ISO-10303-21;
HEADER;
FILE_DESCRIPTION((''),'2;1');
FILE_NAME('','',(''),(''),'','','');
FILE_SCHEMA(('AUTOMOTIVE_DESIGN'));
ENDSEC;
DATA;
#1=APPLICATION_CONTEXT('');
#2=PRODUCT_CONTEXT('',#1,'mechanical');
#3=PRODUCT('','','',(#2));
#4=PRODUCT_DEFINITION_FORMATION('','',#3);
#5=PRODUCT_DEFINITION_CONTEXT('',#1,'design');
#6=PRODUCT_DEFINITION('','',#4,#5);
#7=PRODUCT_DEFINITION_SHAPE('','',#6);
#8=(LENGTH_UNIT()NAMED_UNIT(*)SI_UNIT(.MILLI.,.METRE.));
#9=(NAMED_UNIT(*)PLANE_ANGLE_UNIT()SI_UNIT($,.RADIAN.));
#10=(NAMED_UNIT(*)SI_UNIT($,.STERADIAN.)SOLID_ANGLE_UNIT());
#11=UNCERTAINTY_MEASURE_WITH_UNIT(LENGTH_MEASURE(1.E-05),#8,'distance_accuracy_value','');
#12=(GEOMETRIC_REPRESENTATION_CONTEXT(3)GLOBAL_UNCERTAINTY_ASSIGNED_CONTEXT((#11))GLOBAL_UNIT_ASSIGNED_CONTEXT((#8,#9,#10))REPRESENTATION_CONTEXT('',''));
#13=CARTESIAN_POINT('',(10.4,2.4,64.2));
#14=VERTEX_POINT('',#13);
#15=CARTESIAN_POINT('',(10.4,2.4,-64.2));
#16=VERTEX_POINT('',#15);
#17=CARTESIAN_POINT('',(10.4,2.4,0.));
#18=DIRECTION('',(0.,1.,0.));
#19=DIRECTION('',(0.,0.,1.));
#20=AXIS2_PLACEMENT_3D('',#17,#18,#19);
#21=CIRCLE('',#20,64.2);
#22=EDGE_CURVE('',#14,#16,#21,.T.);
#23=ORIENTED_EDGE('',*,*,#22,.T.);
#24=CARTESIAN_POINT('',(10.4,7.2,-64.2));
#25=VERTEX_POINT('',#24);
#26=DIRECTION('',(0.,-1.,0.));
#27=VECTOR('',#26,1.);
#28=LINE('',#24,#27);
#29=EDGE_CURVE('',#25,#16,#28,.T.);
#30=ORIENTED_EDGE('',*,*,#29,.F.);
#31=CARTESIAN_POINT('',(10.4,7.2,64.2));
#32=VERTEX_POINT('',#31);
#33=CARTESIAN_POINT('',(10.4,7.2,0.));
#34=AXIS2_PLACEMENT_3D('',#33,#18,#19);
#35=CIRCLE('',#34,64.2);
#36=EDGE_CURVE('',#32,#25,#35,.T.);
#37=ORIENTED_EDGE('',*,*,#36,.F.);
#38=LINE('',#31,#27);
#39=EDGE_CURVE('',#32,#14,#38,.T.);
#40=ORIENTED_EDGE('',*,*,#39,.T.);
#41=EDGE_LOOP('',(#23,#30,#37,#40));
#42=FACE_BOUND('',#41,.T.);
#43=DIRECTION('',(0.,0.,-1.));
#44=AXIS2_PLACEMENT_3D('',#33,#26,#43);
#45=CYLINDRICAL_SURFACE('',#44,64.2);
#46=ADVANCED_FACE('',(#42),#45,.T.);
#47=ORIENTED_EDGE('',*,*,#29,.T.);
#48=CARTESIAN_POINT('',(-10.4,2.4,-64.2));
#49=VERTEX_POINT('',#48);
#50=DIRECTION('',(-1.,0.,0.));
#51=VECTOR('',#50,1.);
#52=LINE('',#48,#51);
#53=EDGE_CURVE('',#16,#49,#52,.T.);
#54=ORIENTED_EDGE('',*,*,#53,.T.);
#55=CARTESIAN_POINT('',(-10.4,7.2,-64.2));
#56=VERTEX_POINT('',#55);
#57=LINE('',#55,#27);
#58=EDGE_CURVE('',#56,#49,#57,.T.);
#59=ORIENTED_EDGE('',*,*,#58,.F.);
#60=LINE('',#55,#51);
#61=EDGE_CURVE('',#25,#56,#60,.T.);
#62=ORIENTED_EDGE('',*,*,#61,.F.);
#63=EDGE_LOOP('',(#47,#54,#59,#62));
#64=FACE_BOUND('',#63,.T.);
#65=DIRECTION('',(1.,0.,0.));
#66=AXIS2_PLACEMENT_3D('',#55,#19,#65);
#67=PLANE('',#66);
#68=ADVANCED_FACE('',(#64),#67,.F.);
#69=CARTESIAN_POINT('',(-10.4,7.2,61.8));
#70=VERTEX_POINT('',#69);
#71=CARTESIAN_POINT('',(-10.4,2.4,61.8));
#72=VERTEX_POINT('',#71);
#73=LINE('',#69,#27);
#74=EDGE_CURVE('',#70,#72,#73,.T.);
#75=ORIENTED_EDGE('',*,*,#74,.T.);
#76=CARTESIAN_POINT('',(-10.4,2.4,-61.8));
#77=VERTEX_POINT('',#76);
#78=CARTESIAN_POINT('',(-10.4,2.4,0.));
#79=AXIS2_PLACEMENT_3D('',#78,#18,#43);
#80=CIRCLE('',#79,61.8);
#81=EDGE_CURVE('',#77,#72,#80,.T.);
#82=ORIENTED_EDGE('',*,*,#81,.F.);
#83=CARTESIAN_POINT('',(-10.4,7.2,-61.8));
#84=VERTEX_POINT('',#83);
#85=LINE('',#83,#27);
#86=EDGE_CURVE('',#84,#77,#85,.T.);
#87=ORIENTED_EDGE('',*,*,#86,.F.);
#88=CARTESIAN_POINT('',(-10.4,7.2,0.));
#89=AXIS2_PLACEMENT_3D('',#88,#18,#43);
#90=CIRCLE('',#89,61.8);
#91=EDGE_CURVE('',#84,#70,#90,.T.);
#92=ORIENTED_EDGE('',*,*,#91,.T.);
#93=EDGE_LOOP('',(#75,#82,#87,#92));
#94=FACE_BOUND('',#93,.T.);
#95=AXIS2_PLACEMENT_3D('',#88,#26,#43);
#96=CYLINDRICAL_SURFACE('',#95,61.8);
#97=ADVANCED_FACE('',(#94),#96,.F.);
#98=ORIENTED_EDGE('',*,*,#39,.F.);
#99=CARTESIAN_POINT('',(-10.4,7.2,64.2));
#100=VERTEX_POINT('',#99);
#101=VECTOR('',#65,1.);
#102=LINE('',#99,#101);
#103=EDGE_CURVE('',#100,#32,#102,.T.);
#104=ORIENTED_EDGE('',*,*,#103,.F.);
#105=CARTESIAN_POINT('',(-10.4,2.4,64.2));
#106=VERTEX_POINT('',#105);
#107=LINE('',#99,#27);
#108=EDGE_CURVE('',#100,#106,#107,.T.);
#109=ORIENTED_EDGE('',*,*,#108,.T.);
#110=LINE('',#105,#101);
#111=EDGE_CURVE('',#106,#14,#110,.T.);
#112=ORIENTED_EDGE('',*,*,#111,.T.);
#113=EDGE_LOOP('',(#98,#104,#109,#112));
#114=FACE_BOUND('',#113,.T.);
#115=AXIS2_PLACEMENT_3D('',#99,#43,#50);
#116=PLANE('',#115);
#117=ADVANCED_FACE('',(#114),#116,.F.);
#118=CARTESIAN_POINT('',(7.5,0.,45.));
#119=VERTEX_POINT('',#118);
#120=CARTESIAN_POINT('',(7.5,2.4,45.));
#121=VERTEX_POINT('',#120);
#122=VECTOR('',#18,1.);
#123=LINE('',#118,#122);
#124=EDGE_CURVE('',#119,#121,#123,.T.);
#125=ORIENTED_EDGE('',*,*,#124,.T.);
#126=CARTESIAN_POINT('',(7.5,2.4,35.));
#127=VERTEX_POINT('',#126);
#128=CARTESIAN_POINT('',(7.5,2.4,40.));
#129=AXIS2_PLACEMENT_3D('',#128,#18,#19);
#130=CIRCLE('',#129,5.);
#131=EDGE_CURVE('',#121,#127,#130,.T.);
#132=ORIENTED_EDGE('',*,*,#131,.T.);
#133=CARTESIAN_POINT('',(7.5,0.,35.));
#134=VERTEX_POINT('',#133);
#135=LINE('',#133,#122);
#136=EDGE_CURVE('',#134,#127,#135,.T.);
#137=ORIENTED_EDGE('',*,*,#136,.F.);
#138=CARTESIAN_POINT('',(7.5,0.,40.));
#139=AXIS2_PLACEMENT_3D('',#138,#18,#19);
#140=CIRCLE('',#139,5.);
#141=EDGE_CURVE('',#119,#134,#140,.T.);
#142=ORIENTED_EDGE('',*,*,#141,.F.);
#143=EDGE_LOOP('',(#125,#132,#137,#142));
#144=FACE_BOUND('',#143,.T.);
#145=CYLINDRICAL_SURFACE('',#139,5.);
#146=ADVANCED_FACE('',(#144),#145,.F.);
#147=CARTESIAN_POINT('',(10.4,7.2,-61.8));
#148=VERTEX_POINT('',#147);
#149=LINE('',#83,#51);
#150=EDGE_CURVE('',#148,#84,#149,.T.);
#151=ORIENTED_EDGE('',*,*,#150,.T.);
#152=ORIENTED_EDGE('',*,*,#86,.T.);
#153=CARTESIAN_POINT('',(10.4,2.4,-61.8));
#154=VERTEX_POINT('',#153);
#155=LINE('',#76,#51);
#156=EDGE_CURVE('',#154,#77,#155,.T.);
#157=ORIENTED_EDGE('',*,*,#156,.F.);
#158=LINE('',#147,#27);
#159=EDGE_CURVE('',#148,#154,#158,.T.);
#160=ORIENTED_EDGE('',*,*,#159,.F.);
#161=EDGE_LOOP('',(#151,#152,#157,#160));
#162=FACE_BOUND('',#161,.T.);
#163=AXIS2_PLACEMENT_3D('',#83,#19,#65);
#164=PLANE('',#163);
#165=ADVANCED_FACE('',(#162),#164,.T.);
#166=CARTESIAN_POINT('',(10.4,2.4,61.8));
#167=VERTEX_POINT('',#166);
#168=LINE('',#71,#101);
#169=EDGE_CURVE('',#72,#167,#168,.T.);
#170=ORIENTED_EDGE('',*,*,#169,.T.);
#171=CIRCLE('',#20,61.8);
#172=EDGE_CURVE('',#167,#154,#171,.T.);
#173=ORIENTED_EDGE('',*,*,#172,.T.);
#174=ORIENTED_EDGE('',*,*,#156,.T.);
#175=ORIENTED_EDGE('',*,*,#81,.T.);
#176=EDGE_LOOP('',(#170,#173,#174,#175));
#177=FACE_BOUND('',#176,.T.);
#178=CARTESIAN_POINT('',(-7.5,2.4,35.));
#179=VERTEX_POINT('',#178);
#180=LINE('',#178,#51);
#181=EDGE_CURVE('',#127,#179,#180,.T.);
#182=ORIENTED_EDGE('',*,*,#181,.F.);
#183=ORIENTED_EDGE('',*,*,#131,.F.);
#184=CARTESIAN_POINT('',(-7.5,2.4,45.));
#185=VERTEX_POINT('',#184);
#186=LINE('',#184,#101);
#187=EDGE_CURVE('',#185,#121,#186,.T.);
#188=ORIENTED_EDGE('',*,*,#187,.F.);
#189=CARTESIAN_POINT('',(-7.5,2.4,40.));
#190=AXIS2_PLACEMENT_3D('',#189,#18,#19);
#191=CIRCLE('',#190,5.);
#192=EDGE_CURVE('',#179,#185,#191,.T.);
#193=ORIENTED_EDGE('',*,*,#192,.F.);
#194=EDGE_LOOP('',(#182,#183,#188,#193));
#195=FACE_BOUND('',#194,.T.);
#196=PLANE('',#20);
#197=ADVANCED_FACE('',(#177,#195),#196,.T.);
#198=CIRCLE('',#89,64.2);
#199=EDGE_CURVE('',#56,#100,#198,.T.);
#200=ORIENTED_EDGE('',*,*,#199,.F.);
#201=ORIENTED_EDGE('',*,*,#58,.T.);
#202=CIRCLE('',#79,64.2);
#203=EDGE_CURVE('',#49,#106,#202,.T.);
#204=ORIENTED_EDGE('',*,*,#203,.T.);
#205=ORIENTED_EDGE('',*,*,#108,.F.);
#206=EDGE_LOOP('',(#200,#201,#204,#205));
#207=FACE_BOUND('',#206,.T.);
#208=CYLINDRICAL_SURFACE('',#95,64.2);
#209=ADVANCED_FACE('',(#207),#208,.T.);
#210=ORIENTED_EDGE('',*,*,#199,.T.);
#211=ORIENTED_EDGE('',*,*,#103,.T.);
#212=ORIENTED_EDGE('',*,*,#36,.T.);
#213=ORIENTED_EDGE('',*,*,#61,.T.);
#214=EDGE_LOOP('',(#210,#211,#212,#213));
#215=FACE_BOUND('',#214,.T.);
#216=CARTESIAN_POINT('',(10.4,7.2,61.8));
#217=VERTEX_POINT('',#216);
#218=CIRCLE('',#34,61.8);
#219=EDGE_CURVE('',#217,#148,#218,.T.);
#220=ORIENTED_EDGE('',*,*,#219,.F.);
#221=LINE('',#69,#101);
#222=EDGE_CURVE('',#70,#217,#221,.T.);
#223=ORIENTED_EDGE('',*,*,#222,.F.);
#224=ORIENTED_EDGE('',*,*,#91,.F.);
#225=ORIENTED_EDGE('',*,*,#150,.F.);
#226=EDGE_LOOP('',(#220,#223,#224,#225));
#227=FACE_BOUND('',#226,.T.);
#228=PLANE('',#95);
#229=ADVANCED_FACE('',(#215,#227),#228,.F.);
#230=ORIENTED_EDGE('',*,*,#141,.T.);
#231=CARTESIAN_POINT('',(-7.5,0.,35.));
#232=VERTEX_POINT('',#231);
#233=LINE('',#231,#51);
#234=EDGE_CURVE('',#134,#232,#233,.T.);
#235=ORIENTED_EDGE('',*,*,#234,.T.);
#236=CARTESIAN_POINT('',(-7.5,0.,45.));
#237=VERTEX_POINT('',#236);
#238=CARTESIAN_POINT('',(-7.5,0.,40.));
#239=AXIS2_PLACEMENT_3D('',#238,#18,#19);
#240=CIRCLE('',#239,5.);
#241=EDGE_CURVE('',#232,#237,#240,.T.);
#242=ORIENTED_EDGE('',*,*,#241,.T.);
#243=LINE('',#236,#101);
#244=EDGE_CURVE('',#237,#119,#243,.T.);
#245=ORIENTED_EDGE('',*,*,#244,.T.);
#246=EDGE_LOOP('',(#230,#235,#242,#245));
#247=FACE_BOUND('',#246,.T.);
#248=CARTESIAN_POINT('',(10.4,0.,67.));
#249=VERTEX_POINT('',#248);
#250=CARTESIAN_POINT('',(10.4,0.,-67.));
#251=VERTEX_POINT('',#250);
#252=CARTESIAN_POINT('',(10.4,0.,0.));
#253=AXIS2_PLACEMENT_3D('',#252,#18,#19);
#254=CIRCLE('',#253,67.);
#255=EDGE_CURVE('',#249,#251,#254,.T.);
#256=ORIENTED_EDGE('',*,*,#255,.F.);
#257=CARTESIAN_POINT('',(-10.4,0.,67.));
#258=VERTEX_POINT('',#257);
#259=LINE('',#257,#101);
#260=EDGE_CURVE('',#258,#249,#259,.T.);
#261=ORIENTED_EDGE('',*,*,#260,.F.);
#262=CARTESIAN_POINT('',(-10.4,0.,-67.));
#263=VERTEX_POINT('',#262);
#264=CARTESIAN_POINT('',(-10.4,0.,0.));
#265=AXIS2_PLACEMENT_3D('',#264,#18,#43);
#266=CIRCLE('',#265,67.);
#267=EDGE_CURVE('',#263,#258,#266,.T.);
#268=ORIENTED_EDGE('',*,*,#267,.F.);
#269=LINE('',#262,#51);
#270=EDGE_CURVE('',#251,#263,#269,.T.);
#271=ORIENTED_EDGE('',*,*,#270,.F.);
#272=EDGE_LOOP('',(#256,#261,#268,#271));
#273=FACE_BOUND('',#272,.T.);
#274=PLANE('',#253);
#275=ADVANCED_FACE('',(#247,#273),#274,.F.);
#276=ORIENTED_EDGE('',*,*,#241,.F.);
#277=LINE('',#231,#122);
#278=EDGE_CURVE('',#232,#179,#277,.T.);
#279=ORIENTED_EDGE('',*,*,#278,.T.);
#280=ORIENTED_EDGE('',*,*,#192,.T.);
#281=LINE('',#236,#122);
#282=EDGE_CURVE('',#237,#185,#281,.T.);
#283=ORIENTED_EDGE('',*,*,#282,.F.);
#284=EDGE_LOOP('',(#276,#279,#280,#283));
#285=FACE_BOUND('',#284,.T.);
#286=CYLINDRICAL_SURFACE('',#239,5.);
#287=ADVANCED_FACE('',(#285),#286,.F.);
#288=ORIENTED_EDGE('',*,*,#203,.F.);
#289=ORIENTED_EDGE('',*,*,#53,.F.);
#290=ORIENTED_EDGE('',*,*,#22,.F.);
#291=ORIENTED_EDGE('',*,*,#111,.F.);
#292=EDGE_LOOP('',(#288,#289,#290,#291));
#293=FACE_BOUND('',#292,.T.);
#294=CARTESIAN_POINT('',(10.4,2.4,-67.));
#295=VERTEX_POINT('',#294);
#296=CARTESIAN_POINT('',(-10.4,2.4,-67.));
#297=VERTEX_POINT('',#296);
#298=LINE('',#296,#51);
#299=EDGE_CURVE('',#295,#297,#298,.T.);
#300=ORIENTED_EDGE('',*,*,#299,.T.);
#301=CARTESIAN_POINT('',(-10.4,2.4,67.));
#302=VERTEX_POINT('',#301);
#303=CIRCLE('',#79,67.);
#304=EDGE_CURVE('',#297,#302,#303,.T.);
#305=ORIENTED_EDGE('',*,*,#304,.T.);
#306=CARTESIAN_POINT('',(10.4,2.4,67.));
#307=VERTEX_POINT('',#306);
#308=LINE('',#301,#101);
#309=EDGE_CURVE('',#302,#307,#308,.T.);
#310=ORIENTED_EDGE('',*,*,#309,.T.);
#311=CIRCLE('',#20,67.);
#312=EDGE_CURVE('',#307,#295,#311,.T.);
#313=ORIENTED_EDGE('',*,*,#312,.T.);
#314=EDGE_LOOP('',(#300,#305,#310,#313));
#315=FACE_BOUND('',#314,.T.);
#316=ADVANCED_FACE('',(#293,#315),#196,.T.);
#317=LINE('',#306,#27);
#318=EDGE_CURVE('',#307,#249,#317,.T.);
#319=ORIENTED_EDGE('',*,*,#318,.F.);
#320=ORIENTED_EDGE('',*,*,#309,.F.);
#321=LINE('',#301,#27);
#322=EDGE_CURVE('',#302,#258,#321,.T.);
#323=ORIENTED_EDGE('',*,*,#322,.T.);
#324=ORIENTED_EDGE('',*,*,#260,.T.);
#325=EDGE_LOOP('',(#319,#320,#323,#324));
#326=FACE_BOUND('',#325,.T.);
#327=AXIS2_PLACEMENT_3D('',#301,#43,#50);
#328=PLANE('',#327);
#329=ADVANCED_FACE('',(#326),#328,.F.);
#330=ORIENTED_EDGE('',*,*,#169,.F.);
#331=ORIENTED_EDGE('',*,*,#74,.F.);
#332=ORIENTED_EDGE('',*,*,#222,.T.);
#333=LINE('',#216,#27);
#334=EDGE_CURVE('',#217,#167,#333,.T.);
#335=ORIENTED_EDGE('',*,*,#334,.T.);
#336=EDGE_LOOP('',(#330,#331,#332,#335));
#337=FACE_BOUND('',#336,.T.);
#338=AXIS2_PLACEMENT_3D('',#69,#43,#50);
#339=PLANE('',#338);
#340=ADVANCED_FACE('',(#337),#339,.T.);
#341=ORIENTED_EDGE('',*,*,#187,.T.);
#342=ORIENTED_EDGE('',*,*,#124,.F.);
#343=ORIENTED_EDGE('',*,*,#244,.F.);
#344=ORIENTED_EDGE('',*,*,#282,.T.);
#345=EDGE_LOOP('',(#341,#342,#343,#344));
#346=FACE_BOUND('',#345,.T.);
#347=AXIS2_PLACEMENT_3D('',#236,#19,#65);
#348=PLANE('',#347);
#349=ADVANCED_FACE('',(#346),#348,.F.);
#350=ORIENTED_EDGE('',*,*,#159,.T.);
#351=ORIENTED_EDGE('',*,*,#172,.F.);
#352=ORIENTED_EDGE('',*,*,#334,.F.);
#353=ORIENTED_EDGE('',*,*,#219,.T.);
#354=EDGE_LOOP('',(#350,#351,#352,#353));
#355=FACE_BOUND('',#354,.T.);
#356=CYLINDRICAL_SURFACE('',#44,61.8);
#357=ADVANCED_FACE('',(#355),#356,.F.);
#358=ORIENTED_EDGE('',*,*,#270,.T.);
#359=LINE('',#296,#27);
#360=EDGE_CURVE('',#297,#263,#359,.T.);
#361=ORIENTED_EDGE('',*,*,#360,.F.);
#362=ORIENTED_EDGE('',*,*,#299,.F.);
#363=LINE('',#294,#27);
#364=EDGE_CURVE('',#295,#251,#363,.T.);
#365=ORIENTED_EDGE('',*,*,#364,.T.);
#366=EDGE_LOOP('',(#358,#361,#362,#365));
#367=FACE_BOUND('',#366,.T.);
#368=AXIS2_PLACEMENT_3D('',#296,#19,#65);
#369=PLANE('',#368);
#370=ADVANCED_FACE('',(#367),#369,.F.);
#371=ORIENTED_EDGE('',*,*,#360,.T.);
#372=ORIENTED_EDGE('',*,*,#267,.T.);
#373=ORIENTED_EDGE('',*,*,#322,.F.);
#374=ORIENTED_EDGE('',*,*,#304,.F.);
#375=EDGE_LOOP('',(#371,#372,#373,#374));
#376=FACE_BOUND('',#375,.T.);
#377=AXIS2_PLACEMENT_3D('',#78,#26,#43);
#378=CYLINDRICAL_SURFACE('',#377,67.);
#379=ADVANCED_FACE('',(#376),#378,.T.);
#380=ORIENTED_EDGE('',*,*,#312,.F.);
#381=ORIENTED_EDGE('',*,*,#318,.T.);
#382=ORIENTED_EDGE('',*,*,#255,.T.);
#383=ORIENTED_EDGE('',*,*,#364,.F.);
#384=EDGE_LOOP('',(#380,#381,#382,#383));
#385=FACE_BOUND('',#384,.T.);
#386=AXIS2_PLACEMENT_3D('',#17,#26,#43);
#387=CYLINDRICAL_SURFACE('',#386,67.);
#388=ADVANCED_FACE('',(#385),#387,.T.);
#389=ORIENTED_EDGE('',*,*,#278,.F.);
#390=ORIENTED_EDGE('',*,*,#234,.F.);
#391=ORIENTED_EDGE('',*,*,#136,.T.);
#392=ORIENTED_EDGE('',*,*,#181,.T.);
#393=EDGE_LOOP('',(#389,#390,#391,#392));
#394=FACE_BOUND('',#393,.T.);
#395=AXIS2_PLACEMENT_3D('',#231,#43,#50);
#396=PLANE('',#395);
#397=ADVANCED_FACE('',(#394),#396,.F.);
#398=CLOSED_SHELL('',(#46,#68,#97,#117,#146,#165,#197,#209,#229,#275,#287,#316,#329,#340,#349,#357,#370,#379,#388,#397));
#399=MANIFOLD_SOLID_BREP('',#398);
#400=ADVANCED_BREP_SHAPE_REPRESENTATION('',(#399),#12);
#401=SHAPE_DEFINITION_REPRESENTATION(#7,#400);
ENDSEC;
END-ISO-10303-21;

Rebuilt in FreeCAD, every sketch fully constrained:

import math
import FreeCAD as App
import Part
import Sketcher

V = App.Vector

doc = App.newDocument("Part")
params = doc.addObject("Spreadsheet::Sheet", "Params")
for row, (alias, value) in enumerate([
    ("sketch1_radius", "67 mm"),
    ("sketch1_width", "20.8 mm"),
    ("pad1_length", "2.4 mm"),
    ("sketch2_radius", "64.2 mm"),
    ("sketch2_radius2", "61.8 mm"),
    ("sketch2_width", "20.8 mm"),
    ("pad2_length", "4.8 mm"),
    ("sketch3_radius", "5 mm"),
    ("sketch3_width", "15 mm"),
], start=1):
    params.set(f"A{row}", alias)
    params.set(f"B{row}", "=" + value)
    params.setAlias(f"B{row}", alias)

body = doc.addObject("PartDesign::Body", "Body")

sketch1 = body.newObject("Sketcher::SketchObject", "Sketch")
sketch1.AttachmentSupport = (doc.getObject("XZ_Plane"), [""])
sketch1.MapMode = "FlatFace"
sketch1.addGeometry(Part.LineSegment(V(10, -67, 0), V(-10, -67, 0)), False)
sketch1.addGeometry(Part.ArcOfCircle(Part.Circle(V(-10, 0, 0), V(0, 0, 1), 67), math.radians(90), math.radians(270)), False)
sketch1.addGeometry(Part.LineSegment(V(-10, 67, 0), V(10, 67, 0)), False)
sketch1.addGeometry(Part.ArcOfCircle(Part.Circle(V(10, 0, 0), V(0, 0, 1), 67), math.radians(-90), math.radians(90)), False)
sketch1.addConstraint(Sketcher.Constraint("Tangent", 0, 2, 1, 2))
sketch1.addConstraint(Sketcher.Constraint("Tangent", 1, 1, 2, 1))
sketch1.addConstraint(Sketcher.Constraint("Tangent", 2, 2, 3, 2))
sketch1.addConstraint(Sketcher.Constraint("Tangent", 3, 1, 0, 1))
sketch1.addConstraint(Sketcher.Constraint("Horizontal", 0))
sketch1.addConstraint(Sketcher.Constraint("Horizontal", 2))
sketch1.addConstraint(Sketcher.Constraint("Symmetric", 1, 3, 3, 3, -1, 1))
sketch1.addConstraint(Sketcher.Constraint("Radius", 1, 67.0))
sketch1.addConstraint(Sketcher.Constraint("DistanceX", 0, 2, 0, 1, 20.8))
sketch1.setExpression("Constraints[7]", "Params.sketch1_radius")
sketch1.setExpression("Constraints[8]", "Params.sketch1_width")
pad1 = body.newObject("PartDesign::Pad", "Pad")
pad1.Profile = sketch1
pad1.setExpression("Length", "Params.pad1_length")
pad1.Reversed = True

sketch2 = body.newObject("Sketcher::SketchObject", "Sketch001")
sketch2.AttachmentSupport = (doc.getObject("XZ_Plane"), [""])
sketch2.MapMode = "FlatFace"
sketch2.AttachmentOffset = App.Placement(V(0, 0, -2.4), App.Rotation())
sketch2.addGeometry(Part.LineSegment(V(10, -64, 0), V(-10, -64, 0)), False)
sketch2.addGeometry(Part.ArcOfCircle(Part.Circle(V(-10, 0, 0), V(0, 0, 1), 64), math.radians(90), math.radians(270)), False)
sketch2.addGeometry(Part.LineSegment(V(-10, 64, 0), V(10, 64, 0)), False)
sketch2.addGeometry(Part.ArcOfCircle(Part.Circle(V(10, 0, 0), V(0, 0, 1), 64), math.radians(-90), math.radians(90)), False)
sketch2.addGeometry(Part.LineSegment(V(-10, -62, 0), V(10, -62, 0)), False)
sketch2.addGeometry(Part.ArcOfCircle(Part.Circle(V(10, 0, 0), V(0, 0, 1), 62), math.radians(-90), math.radians(90)), False)
sketch2.addGeometry(Part.LineSegment(V(10, 62, 0), V(-10, 62, 0)), False)
sketch2.addGeometry(Part.ArcOfCircle(Part.Circle(V(-10, 0, 0), V(0, 0, 1), 62), math.radians(90), math.radians(270)), False)
sketch2.addConstraint(Sketcher.Constraint("Tangent", 0, 2, 1, 2))
sketch2.addConstraint(Sketcher.Constraint("Tangent", 1, 1, 2, 1))
sketch2.addConstraint(Sketcher.Constraint("Tangent", 2, 2, 3, 2))
sketch2.addConstraint(Sketcher.Constraint("Tangent", 3, 1, 0, 1))
sketch2.addConstraint(Sketcher.Constraint("Tangent", 4, 2, 5, 1))
sketch2.addConstraint(Sketcher.Constraint("Tangent", 5, 2, 6, 1))
sketch2.addConstraint(Sketcher.Constraint("Tangent", 6, 2, 7, 1))
sketch2.addConstraint(Sketcher.Constraint("Tangent", 7, 2, 4, 1))
sketch2.addConstraint(Sketcher.Constraint("Horizontal", 0))
sketch2.addConstraint(Sketcher.Constraint("Horizontal", 2))
sketch2.addConstraint(Sketcher.Constraint("Horizontal", 4))
sketch2.addConstraint(Sketcher.Constraint("Horizontal", 6))
sketch2.addConstraint(Sketcher.Constraint("Coincident", 5, 3, 3, 3))
sketch2.addConstraint(Sketcher.Constraint("Symmetric", 1, 3, 3, 3, -1, 1))
sketch2.addConstraint(Sketcher.Constraint("Vertical", 7, 3, 0, 2))
sketch2.addConstraint(Sketcher.Constraint("Radius", 1, 64.2))
sketch2.addConstraint(Sketcher.Constraint("Radius", 5, 61.8))
sketch2.addConstraint(Sketcher.Constraint("DistanceX", 0, 2, 0, 1, 20.8))
sketch2.setExpression("Constraints[15]", "Params.sketch2_radius")
sketch2.setExpression("Constraints[16]", "Params.sketch2_radius2")
sketch2.setExpression("Constraints[17]", "Params.sketch2_width")
pad2 = body.newObject("PartDesign::Pad", "Pad001")
pad2.Profile = sketch2
pad2.setExpression("Length", "Params.pad2_length")
pad2.Reversed = True

sketch3 = body.newObject("Sketcher::SketchObject", "Sketch002")
sketch3.AttachmentSupport = (doc.getObject("XZ_Plane"), [""])
sketch3.MapMode = "FlatFace"
sketch3.AttachmentOffset = App.Placement(V(0, 0, -2.4), App.Rotation())
sketch3.addGeometry(Part.LineSegment(V(8, 35, 0), V(-8, 35, 0)), False)
sketch3.addGeometry(Part.ArcOfCircle(Part.Circle(V(-8, 40, 0), V(0, 0, 1), 5), math.radians(90), math.radians(270)), False)
sketch3.addGeometry(Part.LineSegment(V(-8, 45, 0), V(8, 45, 0)), False)
sketch3.addGeometry(Part.ArcOfCircle(Part.Circle(V(8, 40, 0), V(0, 0, 1), 5), math.radians(-90), math.radians(90)), False)
sketch3.addConstraint(Sketcher.Constraint("Tangent", 0, 2, 1, 2))
sketch3.addConstraint(Sketcher.Constraint("Tangent", 1, 1, 2, 1))
sketch3.addConstraint(Sketcher.Constraint("Tangent", 2, 2, 3, 2))
sketch3.addConstraint(Sketcher.Constraint("Tangent", 3, 1, 0, 1))
sketch3.addConstraint(Sketcher.Constraint("Horizontal", 0))
sketch3.addConstraint(Sketcher.Constraint("Horizontal", 2))
sketch3.addConstraint(Sketcher.Constraint("Radius", 1, 5.0))
sketch3.addConstraint(Sketcher.Constraint("DistanceX", 0, 2, 0, 1, 15.0))
sketch3.addConstraint(Sketcher.Constraint("DistanceY", -1, 1, 1, 3, 40.0))
sketch3.addConstraint(Sketcher.Constraint("DistanceX", 1, 3, -1, 1, 7.5))
sketch3.setExpression("Constraints[6]", "Params.sketch3_radius")
sketch3.setExpression("Constraints[7]", "Params.sketch3_width")
pocket1 = body.newObject("PartDesign::Pocket", "Pocket")
pocket1.Profile = sketch3
pocket1.Type = "ThroughAll"
pocket1.Reversed = True

doc.recompute()
